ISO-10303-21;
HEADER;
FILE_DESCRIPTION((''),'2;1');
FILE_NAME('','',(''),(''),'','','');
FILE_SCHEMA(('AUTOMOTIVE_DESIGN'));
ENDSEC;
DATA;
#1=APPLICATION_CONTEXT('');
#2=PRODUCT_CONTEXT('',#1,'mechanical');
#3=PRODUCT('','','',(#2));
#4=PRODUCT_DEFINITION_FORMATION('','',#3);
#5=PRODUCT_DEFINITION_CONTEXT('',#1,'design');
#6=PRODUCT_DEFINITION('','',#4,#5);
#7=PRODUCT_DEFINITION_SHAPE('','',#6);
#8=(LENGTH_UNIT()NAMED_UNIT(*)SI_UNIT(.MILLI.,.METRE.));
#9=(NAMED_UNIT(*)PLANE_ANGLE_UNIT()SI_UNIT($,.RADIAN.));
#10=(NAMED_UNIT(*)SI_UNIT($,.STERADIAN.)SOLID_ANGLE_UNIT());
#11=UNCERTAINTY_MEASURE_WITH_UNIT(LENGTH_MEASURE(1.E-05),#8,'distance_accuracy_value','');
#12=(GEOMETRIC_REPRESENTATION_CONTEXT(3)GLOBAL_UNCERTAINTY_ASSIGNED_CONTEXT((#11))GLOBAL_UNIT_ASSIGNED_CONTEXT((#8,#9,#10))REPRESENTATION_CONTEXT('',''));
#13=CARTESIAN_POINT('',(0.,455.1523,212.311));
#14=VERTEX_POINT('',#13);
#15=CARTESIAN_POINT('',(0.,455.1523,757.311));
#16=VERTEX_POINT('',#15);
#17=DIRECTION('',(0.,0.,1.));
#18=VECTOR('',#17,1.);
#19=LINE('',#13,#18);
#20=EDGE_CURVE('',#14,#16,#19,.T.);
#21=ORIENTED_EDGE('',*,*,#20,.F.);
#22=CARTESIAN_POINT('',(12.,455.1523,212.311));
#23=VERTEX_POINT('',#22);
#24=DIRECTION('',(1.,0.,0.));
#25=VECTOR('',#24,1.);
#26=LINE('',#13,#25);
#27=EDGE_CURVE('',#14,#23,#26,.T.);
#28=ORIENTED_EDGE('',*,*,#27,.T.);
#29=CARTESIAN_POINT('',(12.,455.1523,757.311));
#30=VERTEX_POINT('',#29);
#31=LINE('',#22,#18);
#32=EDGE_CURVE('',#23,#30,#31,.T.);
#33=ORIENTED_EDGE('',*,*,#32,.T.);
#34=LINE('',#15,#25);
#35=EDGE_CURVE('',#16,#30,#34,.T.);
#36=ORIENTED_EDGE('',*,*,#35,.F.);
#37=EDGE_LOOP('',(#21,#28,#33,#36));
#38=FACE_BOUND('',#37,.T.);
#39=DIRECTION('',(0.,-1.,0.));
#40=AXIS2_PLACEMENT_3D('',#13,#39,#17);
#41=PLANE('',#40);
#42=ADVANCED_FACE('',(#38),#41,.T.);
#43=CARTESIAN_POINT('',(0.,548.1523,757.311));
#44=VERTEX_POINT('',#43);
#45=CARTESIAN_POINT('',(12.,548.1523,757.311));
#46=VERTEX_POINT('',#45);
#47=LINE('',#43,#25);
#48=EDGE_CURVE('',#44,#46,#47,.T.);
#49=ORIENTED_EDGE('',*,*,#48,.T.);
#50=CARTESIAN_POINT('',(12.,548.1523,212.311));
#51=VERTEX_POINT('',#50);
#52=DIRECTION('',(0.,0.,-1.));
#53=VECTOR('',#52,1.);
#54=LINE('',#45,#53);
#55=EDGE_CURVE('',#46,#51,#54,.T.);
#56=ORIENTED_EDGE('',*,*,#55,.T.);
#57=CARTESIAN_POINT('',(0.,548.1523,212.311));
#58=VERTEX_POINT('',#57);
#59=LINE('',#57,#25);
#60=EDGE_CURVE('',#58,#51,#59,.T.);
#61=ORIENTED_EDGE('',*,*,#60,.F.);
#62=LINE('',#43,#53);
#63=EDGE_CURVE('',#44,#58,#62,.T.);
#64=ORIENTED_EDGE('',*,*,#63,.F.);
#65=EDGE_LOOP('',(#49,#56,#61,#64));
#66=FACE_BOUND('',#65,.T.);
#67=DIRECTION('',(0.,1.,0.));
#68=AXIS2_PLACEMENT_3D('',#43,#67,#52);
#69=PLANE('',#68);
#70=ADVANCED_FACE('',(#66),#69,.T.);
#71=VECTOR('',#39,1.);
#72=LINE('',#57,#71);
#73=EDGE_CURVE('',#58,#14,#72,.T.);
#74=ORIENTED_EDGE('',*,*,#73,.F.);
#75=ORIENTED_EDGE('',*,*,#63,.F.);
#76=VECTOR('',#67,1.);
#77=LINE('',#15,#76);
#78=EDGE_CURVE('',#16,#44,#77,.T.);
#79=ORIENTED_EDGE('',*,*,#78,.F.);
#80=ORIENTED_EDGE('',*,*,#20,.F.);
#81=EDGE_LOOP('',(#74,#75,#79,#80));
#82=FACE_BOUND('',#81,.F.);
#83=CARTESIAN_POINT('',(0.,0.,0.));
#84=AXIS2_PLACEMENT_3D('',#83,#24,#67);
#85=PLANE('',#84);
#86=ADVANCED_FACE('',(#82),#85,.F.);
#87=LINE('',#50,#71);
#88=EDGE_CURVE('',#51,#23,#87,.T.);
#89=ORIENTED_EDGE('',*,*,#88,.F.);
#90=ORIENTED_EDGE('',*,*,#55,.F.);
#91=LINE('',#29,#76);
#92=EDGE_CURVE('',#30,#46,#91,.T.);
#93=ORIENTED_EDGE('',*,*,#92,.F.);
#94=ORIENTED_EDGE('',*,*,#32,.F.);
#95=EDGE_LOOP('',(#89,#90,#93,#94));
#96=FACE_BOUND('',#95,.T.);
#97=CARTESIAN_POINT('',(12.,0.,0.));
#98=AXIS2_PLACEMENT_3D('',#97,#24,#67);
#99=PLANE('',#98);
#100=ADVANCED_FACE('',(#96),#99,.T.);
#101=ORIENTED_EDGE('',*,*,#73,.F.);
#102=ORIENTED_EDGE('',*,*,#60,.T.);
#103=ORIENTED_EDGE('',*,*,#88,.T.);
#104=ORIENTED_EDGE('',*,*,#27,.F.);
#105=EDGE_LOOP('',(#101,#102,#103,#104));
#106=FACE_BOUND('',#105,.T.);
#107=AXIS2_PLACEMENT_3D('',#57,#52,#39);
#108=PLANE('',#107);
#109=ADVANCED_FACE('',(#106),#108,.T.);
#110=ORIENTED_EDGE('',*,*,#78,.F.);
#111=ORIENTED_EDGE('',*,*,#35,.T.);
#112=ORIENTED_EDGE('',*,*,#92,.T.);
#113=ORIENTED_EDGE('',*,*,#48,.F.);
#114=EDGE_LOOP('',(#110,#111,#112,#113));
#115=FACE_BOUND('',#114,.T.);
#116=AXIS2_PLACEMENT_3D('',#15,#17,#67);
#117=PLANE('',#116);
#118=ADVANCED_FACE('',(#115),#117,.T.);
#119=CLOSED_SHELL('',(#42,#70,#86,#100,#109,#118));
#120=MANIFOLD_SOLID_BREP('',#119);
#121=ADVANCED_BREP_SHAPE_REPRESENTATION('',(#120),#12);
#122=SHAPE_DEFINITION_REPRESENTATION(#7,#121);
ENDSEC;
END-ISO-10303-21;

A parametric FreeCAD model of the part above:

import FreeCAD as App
import Part
import Sketcher

V = App.Vector


def add_polygon(sketch, points):
    """Adds a closed chain of lines whose ends are joined by coincident constraints."""
    first, n = sketch.GeometryCount, len(points)
    for a, b in zip(points, points[1:] + points[:1]):
        sketch.addGeometry(Part.LineSegment(App.Vector(*a, 0), App.Vector(*b, 0)), False)
    for i in range(n):
        sketch.addConstraint(Sketcher.Constraint("Coincident", first + i, 2, first + (i + 1) % n, 1))

doc = App.newDocument("Part")
body = doc.addObject("PartDesign::Body", "Body")

# Sketch on YZ plane
sketch1 = doc.addObject("Sketcher::SketchObject", "Sketch")
body.addObject(sketch1)
sketch1.AttachmentSupport = (doc.YZ_Plane, [""])
sketch1.MapMode = "FlatFace"
add_polygon(sketch1, [(548.1523, 757.311), (455.1523, 757.311), (455.1523, 212.311), (548.1523, 212.311)])  # lines 0-3
sketch1.addConstraint([
    Sketcher.Constraint("Horizontal", 0),
    Sketcher.Constraint("Vertical", 1),
    Sketcher.Constraint("Horizontal", 2),
    Sketcher.Constraint("Vertical", 3),
    Sketcher.Constraint("DistanceX", 0, 2, 0, 1, 93.0),
    Sketcher.Constraint("DistanceY", 1, 2, 1, 1, 545.0),
    Sketcher.Constraint("DistanceY", -1, 1, 0, 2, 757.311),
    Sketcher.Constraint("DistanceX", -1, 1, 0, 2, 455.1523),
])
pad1 = doc.addObject("PartDesign::Pad", "Pad")
body.addObject(pad1)
pad1.Profile = sketch1
pad1.Length = 12

doc.recompute()
